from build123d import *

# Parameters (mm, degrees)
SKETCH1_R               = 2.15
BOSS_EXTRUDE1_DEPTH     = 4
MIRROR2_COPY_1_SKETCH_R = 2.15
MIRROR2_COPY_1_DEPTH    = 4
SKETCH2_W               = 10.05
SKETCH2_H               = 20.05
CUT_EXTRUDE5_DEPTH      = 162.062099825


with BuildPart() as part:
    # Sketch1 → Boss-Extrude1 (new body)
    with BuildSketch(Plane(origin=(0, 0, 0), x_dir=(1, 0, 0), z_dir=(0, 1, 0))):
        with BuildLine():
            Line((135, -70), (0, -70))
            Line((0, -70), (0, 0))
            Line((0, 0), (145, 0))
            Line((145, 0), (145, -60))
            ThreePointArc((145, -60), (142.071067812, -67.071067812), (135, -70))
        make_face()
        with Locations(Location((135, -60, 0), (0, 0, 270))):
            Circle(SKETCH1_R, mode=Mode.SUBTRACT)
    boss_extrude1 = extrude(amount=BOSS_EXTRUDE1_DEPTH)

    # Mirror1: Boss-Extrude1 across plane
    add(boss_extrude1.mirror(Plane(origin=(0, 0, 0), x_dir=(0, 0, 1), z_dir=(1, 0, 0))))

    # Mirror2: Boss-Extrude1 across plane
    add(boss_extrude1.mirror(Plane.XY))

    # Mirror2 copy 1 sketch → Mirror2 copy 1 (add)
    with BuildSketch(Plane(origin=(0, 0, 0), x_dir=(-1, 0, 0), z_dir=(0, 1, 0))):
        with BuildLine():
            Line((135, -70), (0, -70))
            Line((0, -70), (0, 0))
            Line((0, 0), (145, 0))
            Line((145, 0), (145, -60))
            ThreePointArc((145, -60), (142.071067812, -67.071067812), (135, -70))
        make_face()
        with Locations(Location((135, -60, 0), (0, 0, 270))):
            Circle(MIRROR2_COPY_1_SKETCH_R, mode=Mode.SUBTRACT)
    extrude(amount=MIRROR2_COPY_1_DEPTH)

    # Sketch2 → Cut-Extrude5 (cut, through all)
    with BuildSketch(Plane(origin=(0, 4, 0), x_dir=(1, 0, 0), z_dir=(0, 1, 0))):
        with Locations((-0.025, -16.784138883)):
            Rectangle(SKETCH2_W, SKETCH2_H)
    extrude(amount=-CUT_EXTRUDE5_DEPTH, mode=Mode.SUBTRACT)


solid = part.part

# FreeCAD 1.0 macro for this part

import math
import FreeCAD as App
import Part
import Sketcher
from FreeCAD import Vector

doc = App.newDocument("Part")
body = doc.addObject("PartDesign::Body", "Body")

sketch1 = doc.addObject("Sketcher::SketchObject", "Sketch")
body.addObject(sketch1)
sketch1.AttachmentSupport = (doc.XZ_Plane, [""])
sketch1.MapMode = "FlatFace"
sketch1.addGeometry([
    Part.LineSegment(Vector(0, 70, 0), Vector(135, 70, 0)),
    Part.ArcOfCircle(Part.Circle(Vector(135, 60, 0), Vector(0, 0, 1), 10), math.radians(0), math.radians(90)),
    Part.LineSegment(Vector(145, 60, 0), Vector(145, 0, 0)),
    Part.LineSegment(Vector(145, 0, 0), Vector(0, 0, 0)),
    Part.LineSegment(Vector(0, 0, 0), Vector(0, 70, 0)),
    Part.Circle(Vector(135, 60, 0), Vector(0, 0, 1), 2.15),
], False)
sketch1.addConstraint([
    Sketcher.Constraint("Tangent", 0, 2, 1, 2),
    Sketcher.Constraint("Tangent", 1, 1, 2, 1),
    Sketcher.Constraint("Coincident", 2, 2, 3, 1),
    Sketcher.Constraint("Coincident", 3, 2, 4, 1),
    Sketcher.Constraint("Coincident", 4, 2, 0, 1),
    Sketcher.Constraint("Horizontal", 0),
    Sketcher.Constraint("Vertical", 2),
    Sketcher.Constraint("Horizontal", 3),
    Sketcher.Constraint("Vertical", 4),
    Sketcher.Constraint("Coincident", 3, 2, -1, 1),
    Sketcher.Constraint("Coincident", 5, 3, 1, 3),
    Sketcher.Constraint("Radius", 1, 10.0),
    Sketcher.Constraint("Diameter", 5, 4.3),
    Sketcher.Constraint("DistanceX", 0, 1, 0, 2, 135.0),
    Sketcher.Constraint("DistanceY", 2, 2, 2, 1, 60.0),
])
pad1 = doc.addObject("PartDesign::Pad", "Pad")
body.addObject(pad1)
pad1.Profile = sketch1
pad1.Length = 4
pad1.Reversed = True
doc.recompute()

mirrored = doc.addObject("PartDesign::Mirrored", "Mirrored")
body.addObject(mirrored)
mirrored.Originals = [pad1]
mirrored.MirrorPlane = (doc.YZ_Plane, [""])
body.Tip = mirrored
doc.recompute()

mirrored2 = doc.addObject("PartDesign::Mirrored", "Mirrored001")
body.addObject(mirrored2)
mirrored2.Originals = [pad1]
mirrored2.MirrorPlane = (doc.XY_Plane, [""])
body.Tip = mirrored2

sketch2 = doc.addObject("Sketcher::SketchObject", "Sketch001")
body.addObject(sketch2)
sketch2.AttachmentSupport = (doc.XZ_Plane, [""])
sketch2.MapMode = "FlatFace"
sketch2.addGeometry([
    Part.LineSegment(Vector(0, -70, 0), Vector(-135, -70, 0)),
    Part.ArcOfCircle(Part.Circle(Vector(-135, -60, 0), Vector(0, 0, 1), 10), math.radians(180), math.radians(270)),
    Part.LineSegment(Vector(-145, -60, 0), Vector(-145, 0, 0)),
    Part.LineSegment(Vector(-145, 0, 0), Vector(0, 0, 0)),
    Part.LineSegment(Vector(0, 0, 0), Vector(0, -70, 0)),
    Part.Circle(Vector(-135, -60, 0), Vector(0, 0, 1), 2.15),
], False)
sketch2.addConstraint([
    Sketcher.Constraint("Tangent", 0, 2, 1, 2),
    Sketcher.Constraint("Tangent", 1, 1, 2, 1),
    Sketcher.Constraint("Coincident", 2, 2, 3, 1),
    Sketcher.Constraint("Coincident", 3, 2, 4, 1),
    Sketcher.Constraint("Coincident", 4, 2, 0, 1),
    Sketcher.Constraint("Horizontal", 0),
    Sketcher.Constraint("Vertical", 2),
    Sketcher.Constraint("Horizontal", 3),
    Sketcher.Constraint("Vertical", 4),
    Sketcher.Constraint("Coincident", 3, 2, -1, 1),
    Sketcher.Constraint("Coincident", 5, 3, 1, 3),
    Sketcher.Constraint("Radius", 1, 10.0),
    Sketcher.Constraint("Diameter", 5, 4.3),
    Sketcher.Constraint("DistanceX", 0, 2, 0, 1, 135.0),
    Sketcher.Constraint("DistanceY", 2, 1, 2, 2, 60.0),
])
pad2 = doc.addObject("PartDesign::Pad", "Pad001")
body.addObject(pad2)
pad2.Profile = sketch2
pad2.Length = 4
pad2.Reversed = True

sketch3 = doc.addObject("Sketcher::SketchObject", "Sketch002")
body.addObject(sketch3)
sketch3.AttachmentSupport = (doc.XZ_Plane, [""])
sketch3.MapMode = "FlatFace"
sketch3.AttachmentOffset = App.Placement(Vector(0, 0, -4), App.Rotation())
sketch3.addGeometry([
    Part.LineSegment(Vector(-5.05, 6.759139, 0), Vector(-5.05, 26.809139, 0)),
    Part.LineSegment(Vector(-5.05, 26.809139, 0), Vector(5, 26.809139, 0)),
    Part.LineSegment(Vector(5, 26.809139, 0), Vector(5, 6.759139, 0)),
    Part.LineSegment(Vector(5, 6.759139, 0), Vector(-5.05, 6.759139, 0)),
], False)
sketch3.addConstraint([
    Sketcher.Constraint("Coincident", 0, 2, 1, 1),
    Sketcher.Constraint("Coincident", 1, 2, 2, 1),
    Sketcher.Constraint("Coincident", 2, 2, 3, 1),
    Sketcher.Constraint("Coincident", 3, 2, 0, 1),
    Sketcher.Constraint("Vertical", 0),
    Sketcher.Constraint("Horizontal", 1),
    Sketcher.Constraint("Vertical", 2),
    Sketcher.Constraint("Horizontal", 3),
    Sketcher.Constraint("DistanceX", -1, 1, 1, 2, 5.0),
    Sketcher.Constraint("DistanceX", 1, 1, 1, 2, 10.05),
    Sketcher.Constraint("DistanceY", 0, 1, 0, 2, 20.05),
    Sketcher.Constraint("DistanceY", -1, 1, 0, 2, 26.809139),
])
pocket1 = doc.addObject("PartDesign::Pocket", "Pocket")
body.addObject(pocket1)
pocket1.Profile = sketch3
pocket1.Type = "ThroughAll"
pocket1.Reversed = True

doc.recompute()
